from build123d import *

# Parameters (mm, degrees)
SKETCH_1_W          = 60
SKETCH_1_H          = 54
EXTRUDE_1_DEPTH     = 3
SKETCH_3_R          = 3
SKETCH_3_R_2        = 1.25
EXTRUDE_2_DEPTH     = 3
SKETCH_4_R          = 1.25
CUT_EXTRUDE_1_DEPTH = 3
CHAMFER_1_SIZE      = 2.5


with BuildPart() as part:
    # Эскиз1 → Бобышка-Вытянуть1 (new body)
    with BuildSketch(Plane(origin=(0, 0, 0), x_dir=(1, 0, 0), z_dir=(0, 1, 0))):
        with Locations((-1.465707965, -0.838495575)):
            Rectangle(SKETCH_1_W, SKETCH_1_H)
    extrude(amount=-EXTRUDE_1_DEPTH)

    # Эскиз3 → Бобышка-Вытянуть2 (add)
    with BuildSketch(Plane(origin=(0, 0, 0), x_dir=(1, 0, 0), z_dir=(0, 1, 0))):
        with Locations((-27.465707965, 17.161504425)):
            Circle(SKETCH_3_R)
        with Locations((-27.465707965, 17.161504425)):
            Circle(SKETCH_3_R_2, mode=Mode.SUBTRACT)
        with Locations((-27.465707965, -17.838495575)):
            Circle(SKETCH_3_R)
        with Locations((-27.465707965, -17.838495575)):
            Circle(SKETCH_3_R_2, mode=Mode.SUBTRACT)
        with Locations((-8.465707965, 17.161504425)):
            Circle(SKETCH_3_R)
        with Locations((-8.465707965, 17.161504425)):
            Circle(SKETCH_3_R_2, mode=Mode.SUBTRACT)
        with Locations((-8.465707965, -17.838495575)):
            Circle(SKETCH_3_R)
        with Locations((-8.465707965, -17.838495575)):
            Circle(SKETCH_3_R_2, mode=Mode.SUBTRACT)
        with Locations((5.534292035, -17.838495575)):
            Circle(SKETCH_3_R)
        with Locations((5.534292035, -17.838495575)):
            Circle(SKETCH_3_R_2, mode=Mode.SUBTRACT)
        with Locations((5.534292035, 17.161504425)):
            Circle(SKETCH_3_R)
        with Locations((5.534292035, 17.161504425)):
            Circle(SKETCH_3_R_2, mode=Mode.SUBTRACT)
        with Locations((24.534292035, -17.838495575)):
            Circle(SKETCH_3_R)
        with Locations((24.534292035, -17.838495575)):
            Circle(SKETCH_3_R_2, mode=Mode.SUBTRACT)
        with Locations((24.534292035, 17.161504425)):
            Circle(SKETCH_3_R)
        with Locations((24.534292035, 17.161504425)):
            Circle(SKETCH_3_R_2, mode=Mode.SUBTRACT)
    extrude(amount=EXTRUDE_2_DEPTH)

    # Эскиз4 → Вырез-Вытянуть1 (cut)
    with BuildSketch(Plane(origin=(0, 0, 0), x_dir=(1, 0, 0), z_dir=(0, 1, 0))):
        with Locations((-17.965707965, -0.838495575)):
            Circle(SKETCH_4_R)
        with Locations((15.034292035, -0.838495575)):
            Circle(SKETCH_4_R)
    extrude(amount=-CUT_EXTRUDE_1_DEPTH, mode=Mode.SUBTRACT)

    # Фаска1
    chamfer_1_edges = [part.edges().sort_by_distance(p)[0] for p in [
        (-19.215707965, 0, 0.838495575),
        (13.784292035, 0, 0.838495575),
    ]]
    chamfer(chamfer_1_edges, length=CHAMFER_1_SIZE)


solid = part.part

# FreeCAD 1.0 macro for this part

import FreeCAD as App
import Part
import Sketcher
from FreeCAD import Vector


def edges_at(feature, points):
    """Names of the edges that pass closest to the given points."""
    edges = feature.Shape.Edges
    near = lambda p: min(range(len(edges)), key=lambda i: edges[i].distToShape(Part.Vertex(*p))[0])
    return sorted({f"Edge{near(p) + 1}" for p in points})

doc = App.newDocument("Part")
body = doc.addObject("PartDesign::Body", "Body")

# Sketch on XZ plane
sketch1 = body.newObject("Sketcher::SketchObject", "Sketch")
sketch1.AttachmentSupport = (doc.getObject("XZ_Plane"), [""])
sketch1.MapMode = "FlatFace"
sketch1.addGeometry([
    Part.LineSegment(Vector(-31, -26, 0), Vector(-31, 28, 0)),
    Part.LineSegment(Vector(-31, 28, 0), Vector(29, 28, 0)),
    Part.LineSegment(Vector(29, 28, 0), Vector(29, -26, 0)),
    Part.LineSegment(Vector(29, -26, 0), Vector(-31, -26, 0)),
], False)
sketch1.addConstraint([
    Sketcher.Constraint("Coincident", 0, 2, 1, 1),
    Sketcher.Constraint("Coincident", 1, 2, 2, 1),
    Sketcher.Constraint("Coincident", 2, 2, 3, 1),
    Sketcher.Constraint("Coincident", 3, 2, 0, 1),
    Sketcher.Constraint("Vertical", 0),
    Sketcher.Constraint("Horizontal", 1),
    Sketcher.Constraint("Vertical", 2),
    Sketcher.Constraint("Horizontal", 3),
    Sketcher.Constraint("DistanceX", 1, 1, 1, 2, 60.0),
    Sketcher.Constraint("DistanceY", 0, 1, 0, 2, 54.0),
    Sketcher.Constraint("DistanceX", 0, 2, -1, 1, 31.465708),
    Sketcher.Constraint("DistanceY", -1, 1, 0, 2, 27.838496),
])
pad1 = body.newObject("PartDesign::Pad", "Pad")
pad1.Profile = sketch1
pad1.Length = 3

# Sketch on XZ plane
sketch2 = body.newObject("Sketcher::SketchObject", "Sketch001")
sketch2.AttachmentSupport = (doc.getObject("XZ_Plane"), [""])
sketch2.MapMode = "FlatFace"
sketch2.addGeometry([
    Part.Circle(Vector(-27.5, -17.2, 0), Vector(0, 0, 1), 3),  # 0
    Part.Circle(Vector(-27.5, -17.2, 0), Vector(0, 0, 1), 1.2),  # 1
    Part.Circle(Vector(-27.5, 17.8, 0), Vector(0, 0, 1), 3),  # 2
    Part.Circle(Vector(-27.5, 17.8, 0), Vector(0, 0, 1), 1.2),  # 3
    Part.Circle(Vector(-8.5, -17.2, 0), Vector(0, 0, 1), 3),  # 4
    Part.Circle(Vector(-8.5, -17.2, 0), Vector(0, 0, 1), 1.2),  # 5
    Part.Circle(Vector(-8.5, 17.8, 0), Vector(0, 0, 1), 3),  # 6
    Part.Circle(Vector(-8.5, 17.8, 0), Vector(0, 0, 1), 1.2),  # 7
    Part.Circle(Vector(5.5, 17.8, 0), Vector(0, 0, 1), 3),  # 8
    Part.Circle(Vector(5.5, 17.8, 0), Vector(0, 0, 1), 1.2),  # 9
    Part.Circle(Vector(5.5, -17.2, 0), Vector(0, 0, 1), 3),  # 10
    Part.Circle(Vector(5.5, -17.2, 0), Vector(0, 0, 1), 1.2),  # 11
    Part.Circle(Vector(24.5, 17.8, 0), Vector(0, 0, 1), 3),  # 12
    Part.Circle(Vector(24.5, 17.8, 0), Vector(0, 0, 1), 1.2),  # 13
    Part.Circle(Vector(24.5, -17.2, 0), Vector(0, 0, 1), 3),  # 14
    Part.Circle(Vector(24.5, -17.2, 0), Vector(0, 0, 1), 1.2),  # 15
], False)
sketch2.addConstraint([
    Sketcher.Constraint("Coincident", 1, 3, 0, 3),
    Sketcher.Constraint("Coincident", 3, 3, 2, 3),
    Sketcher.Constraint("Coincident", 5, 3, 4, 3),
    Sketcher.Constraint("Coincident", 7, 3, 6, 3),
    Sketcher.Constraint("Coincident", 9, 3, 8, 3),
    Sketcher.Constraint("Coincident", 11, 3, 10, 3),
    Sketcher.Constraint("Coincident", 13, 3, 12, 3),
    Sketcher.Constraint("Coincident", 15, 3, 14, 3),
    Sketcher.Constraint("Equal", 0, 2),
    Sketcher.Constraint("Equal", 1, 3),
    Sketcher.Constraint("Equal", 2, 4),
    Sketcher.Constraint("Equal", 3, 5),
    Sketcher.Constraint("Equal", 4, 6),
    Sketcher.Constraint("Equal", 5, 7),
    Sketcher.Constraint("Equal", 6, 8),
    Sketcher.Constraint("Equal", 7, 9),
    Sketcher.Constraint("Equal", 8, 10),
    Sketcher.Constraint("Equal", 9, 11),
    Sketcher.Constraint("Equal", 10, 12),
    Sketcher.Constraint("Equal", 11, 13),
    Sketcher.Constraint("Equal", 12, 14),
    Sketcher.Constraint("Equal", 13, 15),
    Sketcher.Constraint("Horizontal", 1, 3, 4, 3),
    Sketcher.Constraint("Horizontal", 3, 3, 6, 3),
    Sketcher.Constraint("Horizontal", 7, 3, 8, 3),
    Sketcher.Constraint("Horizontal", 5, 3, 10, 3),
    Sketcher.Constraint("Horizontal", 9, 3, 12, 3),
    Sketcher.Constraint("Horizontal", 11, 3, 14, 3),
    Sketcher.Constraint("Vertical", 1, 3, 2, 3),
    Sketcher.Constraint("Vertical", 5, 3, 6, 3),
    Sketcher.Constraint("Vertical", 9, 3, 10, 3),
    Sketcher.Constraint("Vertical", 13, 3, 14, 3),
    Sketcher.Constraint("Diameter", 0, 6.0),
    Sketcher.Constraint("Diameter", 1, 2.5),
    Sketcher.Constraint("DistanceY", 0, 3, 2, 3, 35.0),
    Sketcher.Constraint("DistanceX", 0, 3, 4, 3, 19.0),
    Sketcher.Constraint("DistanceX", 6, 3, 8, 3, 14.0),
    Sketcher.Constraint("DistanceX", 8, 3, 12, 3, 19.0),
    Sketcher.Constraint("DistanceX", 0, 3, -1, 1, 27.465708),
    Sketcher.Constraint("DistanceY", 0, 3, -1, 1, 17.161504),
])
pad2 = body.newObject("PartDesign::Pad", "Pad001")
pad2.Profile = sketch2
pad2.Length = 3
pad2.Reversed = True

# Sketch on XZ plane
sketch3 = body.newObject("Sketcher::SketchObject", "Sketch002")
sketch3.AttachmentSupport = (doc.getObject("XZ_Plane"), [""])
sketch3.MapMode = "FlatFace"
sketch3.addGeometry([
    Part.Circle(Vector(-18, 0.8, 0), Vector(0, 0, 1), 1.2),
    Part.Circle(Vector(15, 0.8, 0), Vector(0, 0, 1), 1.2),
], False)
sketch3.addConstraint([
    Sketcher.Constraint("Equal", 0, 1),
    Sketcher.Constraint("Horizontal", 0, 3, 1, 3),
    Sketcher.Constraint("Diameter", 0, 2.5),
    Sketcher.Constraint("DistanceX", 0, 3, 1, 3, 33.0),
    Sketcher.Constraint("DistanceX", 0, 3, -1, 1, 17.965708),
    Sketcher.Constraint("DistanceY", -1, 1, 0, 3, 0.838496),
])
pocket1 = body.newObject("PartDesign::Pocket", "Pocket")
pocket1.Profile = sketch3
pocket1.Length = 3
pocket1.Reversed = True
doc.recompute()

chamfer = body.newObject("PartDesign::Chamfer", "Chamfer")
chamfer.Base = (pocket1, edges_at(pocket1, [(-19.216, 0, 0.838), (13.784, 0, 0.838)]))
chamfer.Size = 2.5

doc.recompute()
